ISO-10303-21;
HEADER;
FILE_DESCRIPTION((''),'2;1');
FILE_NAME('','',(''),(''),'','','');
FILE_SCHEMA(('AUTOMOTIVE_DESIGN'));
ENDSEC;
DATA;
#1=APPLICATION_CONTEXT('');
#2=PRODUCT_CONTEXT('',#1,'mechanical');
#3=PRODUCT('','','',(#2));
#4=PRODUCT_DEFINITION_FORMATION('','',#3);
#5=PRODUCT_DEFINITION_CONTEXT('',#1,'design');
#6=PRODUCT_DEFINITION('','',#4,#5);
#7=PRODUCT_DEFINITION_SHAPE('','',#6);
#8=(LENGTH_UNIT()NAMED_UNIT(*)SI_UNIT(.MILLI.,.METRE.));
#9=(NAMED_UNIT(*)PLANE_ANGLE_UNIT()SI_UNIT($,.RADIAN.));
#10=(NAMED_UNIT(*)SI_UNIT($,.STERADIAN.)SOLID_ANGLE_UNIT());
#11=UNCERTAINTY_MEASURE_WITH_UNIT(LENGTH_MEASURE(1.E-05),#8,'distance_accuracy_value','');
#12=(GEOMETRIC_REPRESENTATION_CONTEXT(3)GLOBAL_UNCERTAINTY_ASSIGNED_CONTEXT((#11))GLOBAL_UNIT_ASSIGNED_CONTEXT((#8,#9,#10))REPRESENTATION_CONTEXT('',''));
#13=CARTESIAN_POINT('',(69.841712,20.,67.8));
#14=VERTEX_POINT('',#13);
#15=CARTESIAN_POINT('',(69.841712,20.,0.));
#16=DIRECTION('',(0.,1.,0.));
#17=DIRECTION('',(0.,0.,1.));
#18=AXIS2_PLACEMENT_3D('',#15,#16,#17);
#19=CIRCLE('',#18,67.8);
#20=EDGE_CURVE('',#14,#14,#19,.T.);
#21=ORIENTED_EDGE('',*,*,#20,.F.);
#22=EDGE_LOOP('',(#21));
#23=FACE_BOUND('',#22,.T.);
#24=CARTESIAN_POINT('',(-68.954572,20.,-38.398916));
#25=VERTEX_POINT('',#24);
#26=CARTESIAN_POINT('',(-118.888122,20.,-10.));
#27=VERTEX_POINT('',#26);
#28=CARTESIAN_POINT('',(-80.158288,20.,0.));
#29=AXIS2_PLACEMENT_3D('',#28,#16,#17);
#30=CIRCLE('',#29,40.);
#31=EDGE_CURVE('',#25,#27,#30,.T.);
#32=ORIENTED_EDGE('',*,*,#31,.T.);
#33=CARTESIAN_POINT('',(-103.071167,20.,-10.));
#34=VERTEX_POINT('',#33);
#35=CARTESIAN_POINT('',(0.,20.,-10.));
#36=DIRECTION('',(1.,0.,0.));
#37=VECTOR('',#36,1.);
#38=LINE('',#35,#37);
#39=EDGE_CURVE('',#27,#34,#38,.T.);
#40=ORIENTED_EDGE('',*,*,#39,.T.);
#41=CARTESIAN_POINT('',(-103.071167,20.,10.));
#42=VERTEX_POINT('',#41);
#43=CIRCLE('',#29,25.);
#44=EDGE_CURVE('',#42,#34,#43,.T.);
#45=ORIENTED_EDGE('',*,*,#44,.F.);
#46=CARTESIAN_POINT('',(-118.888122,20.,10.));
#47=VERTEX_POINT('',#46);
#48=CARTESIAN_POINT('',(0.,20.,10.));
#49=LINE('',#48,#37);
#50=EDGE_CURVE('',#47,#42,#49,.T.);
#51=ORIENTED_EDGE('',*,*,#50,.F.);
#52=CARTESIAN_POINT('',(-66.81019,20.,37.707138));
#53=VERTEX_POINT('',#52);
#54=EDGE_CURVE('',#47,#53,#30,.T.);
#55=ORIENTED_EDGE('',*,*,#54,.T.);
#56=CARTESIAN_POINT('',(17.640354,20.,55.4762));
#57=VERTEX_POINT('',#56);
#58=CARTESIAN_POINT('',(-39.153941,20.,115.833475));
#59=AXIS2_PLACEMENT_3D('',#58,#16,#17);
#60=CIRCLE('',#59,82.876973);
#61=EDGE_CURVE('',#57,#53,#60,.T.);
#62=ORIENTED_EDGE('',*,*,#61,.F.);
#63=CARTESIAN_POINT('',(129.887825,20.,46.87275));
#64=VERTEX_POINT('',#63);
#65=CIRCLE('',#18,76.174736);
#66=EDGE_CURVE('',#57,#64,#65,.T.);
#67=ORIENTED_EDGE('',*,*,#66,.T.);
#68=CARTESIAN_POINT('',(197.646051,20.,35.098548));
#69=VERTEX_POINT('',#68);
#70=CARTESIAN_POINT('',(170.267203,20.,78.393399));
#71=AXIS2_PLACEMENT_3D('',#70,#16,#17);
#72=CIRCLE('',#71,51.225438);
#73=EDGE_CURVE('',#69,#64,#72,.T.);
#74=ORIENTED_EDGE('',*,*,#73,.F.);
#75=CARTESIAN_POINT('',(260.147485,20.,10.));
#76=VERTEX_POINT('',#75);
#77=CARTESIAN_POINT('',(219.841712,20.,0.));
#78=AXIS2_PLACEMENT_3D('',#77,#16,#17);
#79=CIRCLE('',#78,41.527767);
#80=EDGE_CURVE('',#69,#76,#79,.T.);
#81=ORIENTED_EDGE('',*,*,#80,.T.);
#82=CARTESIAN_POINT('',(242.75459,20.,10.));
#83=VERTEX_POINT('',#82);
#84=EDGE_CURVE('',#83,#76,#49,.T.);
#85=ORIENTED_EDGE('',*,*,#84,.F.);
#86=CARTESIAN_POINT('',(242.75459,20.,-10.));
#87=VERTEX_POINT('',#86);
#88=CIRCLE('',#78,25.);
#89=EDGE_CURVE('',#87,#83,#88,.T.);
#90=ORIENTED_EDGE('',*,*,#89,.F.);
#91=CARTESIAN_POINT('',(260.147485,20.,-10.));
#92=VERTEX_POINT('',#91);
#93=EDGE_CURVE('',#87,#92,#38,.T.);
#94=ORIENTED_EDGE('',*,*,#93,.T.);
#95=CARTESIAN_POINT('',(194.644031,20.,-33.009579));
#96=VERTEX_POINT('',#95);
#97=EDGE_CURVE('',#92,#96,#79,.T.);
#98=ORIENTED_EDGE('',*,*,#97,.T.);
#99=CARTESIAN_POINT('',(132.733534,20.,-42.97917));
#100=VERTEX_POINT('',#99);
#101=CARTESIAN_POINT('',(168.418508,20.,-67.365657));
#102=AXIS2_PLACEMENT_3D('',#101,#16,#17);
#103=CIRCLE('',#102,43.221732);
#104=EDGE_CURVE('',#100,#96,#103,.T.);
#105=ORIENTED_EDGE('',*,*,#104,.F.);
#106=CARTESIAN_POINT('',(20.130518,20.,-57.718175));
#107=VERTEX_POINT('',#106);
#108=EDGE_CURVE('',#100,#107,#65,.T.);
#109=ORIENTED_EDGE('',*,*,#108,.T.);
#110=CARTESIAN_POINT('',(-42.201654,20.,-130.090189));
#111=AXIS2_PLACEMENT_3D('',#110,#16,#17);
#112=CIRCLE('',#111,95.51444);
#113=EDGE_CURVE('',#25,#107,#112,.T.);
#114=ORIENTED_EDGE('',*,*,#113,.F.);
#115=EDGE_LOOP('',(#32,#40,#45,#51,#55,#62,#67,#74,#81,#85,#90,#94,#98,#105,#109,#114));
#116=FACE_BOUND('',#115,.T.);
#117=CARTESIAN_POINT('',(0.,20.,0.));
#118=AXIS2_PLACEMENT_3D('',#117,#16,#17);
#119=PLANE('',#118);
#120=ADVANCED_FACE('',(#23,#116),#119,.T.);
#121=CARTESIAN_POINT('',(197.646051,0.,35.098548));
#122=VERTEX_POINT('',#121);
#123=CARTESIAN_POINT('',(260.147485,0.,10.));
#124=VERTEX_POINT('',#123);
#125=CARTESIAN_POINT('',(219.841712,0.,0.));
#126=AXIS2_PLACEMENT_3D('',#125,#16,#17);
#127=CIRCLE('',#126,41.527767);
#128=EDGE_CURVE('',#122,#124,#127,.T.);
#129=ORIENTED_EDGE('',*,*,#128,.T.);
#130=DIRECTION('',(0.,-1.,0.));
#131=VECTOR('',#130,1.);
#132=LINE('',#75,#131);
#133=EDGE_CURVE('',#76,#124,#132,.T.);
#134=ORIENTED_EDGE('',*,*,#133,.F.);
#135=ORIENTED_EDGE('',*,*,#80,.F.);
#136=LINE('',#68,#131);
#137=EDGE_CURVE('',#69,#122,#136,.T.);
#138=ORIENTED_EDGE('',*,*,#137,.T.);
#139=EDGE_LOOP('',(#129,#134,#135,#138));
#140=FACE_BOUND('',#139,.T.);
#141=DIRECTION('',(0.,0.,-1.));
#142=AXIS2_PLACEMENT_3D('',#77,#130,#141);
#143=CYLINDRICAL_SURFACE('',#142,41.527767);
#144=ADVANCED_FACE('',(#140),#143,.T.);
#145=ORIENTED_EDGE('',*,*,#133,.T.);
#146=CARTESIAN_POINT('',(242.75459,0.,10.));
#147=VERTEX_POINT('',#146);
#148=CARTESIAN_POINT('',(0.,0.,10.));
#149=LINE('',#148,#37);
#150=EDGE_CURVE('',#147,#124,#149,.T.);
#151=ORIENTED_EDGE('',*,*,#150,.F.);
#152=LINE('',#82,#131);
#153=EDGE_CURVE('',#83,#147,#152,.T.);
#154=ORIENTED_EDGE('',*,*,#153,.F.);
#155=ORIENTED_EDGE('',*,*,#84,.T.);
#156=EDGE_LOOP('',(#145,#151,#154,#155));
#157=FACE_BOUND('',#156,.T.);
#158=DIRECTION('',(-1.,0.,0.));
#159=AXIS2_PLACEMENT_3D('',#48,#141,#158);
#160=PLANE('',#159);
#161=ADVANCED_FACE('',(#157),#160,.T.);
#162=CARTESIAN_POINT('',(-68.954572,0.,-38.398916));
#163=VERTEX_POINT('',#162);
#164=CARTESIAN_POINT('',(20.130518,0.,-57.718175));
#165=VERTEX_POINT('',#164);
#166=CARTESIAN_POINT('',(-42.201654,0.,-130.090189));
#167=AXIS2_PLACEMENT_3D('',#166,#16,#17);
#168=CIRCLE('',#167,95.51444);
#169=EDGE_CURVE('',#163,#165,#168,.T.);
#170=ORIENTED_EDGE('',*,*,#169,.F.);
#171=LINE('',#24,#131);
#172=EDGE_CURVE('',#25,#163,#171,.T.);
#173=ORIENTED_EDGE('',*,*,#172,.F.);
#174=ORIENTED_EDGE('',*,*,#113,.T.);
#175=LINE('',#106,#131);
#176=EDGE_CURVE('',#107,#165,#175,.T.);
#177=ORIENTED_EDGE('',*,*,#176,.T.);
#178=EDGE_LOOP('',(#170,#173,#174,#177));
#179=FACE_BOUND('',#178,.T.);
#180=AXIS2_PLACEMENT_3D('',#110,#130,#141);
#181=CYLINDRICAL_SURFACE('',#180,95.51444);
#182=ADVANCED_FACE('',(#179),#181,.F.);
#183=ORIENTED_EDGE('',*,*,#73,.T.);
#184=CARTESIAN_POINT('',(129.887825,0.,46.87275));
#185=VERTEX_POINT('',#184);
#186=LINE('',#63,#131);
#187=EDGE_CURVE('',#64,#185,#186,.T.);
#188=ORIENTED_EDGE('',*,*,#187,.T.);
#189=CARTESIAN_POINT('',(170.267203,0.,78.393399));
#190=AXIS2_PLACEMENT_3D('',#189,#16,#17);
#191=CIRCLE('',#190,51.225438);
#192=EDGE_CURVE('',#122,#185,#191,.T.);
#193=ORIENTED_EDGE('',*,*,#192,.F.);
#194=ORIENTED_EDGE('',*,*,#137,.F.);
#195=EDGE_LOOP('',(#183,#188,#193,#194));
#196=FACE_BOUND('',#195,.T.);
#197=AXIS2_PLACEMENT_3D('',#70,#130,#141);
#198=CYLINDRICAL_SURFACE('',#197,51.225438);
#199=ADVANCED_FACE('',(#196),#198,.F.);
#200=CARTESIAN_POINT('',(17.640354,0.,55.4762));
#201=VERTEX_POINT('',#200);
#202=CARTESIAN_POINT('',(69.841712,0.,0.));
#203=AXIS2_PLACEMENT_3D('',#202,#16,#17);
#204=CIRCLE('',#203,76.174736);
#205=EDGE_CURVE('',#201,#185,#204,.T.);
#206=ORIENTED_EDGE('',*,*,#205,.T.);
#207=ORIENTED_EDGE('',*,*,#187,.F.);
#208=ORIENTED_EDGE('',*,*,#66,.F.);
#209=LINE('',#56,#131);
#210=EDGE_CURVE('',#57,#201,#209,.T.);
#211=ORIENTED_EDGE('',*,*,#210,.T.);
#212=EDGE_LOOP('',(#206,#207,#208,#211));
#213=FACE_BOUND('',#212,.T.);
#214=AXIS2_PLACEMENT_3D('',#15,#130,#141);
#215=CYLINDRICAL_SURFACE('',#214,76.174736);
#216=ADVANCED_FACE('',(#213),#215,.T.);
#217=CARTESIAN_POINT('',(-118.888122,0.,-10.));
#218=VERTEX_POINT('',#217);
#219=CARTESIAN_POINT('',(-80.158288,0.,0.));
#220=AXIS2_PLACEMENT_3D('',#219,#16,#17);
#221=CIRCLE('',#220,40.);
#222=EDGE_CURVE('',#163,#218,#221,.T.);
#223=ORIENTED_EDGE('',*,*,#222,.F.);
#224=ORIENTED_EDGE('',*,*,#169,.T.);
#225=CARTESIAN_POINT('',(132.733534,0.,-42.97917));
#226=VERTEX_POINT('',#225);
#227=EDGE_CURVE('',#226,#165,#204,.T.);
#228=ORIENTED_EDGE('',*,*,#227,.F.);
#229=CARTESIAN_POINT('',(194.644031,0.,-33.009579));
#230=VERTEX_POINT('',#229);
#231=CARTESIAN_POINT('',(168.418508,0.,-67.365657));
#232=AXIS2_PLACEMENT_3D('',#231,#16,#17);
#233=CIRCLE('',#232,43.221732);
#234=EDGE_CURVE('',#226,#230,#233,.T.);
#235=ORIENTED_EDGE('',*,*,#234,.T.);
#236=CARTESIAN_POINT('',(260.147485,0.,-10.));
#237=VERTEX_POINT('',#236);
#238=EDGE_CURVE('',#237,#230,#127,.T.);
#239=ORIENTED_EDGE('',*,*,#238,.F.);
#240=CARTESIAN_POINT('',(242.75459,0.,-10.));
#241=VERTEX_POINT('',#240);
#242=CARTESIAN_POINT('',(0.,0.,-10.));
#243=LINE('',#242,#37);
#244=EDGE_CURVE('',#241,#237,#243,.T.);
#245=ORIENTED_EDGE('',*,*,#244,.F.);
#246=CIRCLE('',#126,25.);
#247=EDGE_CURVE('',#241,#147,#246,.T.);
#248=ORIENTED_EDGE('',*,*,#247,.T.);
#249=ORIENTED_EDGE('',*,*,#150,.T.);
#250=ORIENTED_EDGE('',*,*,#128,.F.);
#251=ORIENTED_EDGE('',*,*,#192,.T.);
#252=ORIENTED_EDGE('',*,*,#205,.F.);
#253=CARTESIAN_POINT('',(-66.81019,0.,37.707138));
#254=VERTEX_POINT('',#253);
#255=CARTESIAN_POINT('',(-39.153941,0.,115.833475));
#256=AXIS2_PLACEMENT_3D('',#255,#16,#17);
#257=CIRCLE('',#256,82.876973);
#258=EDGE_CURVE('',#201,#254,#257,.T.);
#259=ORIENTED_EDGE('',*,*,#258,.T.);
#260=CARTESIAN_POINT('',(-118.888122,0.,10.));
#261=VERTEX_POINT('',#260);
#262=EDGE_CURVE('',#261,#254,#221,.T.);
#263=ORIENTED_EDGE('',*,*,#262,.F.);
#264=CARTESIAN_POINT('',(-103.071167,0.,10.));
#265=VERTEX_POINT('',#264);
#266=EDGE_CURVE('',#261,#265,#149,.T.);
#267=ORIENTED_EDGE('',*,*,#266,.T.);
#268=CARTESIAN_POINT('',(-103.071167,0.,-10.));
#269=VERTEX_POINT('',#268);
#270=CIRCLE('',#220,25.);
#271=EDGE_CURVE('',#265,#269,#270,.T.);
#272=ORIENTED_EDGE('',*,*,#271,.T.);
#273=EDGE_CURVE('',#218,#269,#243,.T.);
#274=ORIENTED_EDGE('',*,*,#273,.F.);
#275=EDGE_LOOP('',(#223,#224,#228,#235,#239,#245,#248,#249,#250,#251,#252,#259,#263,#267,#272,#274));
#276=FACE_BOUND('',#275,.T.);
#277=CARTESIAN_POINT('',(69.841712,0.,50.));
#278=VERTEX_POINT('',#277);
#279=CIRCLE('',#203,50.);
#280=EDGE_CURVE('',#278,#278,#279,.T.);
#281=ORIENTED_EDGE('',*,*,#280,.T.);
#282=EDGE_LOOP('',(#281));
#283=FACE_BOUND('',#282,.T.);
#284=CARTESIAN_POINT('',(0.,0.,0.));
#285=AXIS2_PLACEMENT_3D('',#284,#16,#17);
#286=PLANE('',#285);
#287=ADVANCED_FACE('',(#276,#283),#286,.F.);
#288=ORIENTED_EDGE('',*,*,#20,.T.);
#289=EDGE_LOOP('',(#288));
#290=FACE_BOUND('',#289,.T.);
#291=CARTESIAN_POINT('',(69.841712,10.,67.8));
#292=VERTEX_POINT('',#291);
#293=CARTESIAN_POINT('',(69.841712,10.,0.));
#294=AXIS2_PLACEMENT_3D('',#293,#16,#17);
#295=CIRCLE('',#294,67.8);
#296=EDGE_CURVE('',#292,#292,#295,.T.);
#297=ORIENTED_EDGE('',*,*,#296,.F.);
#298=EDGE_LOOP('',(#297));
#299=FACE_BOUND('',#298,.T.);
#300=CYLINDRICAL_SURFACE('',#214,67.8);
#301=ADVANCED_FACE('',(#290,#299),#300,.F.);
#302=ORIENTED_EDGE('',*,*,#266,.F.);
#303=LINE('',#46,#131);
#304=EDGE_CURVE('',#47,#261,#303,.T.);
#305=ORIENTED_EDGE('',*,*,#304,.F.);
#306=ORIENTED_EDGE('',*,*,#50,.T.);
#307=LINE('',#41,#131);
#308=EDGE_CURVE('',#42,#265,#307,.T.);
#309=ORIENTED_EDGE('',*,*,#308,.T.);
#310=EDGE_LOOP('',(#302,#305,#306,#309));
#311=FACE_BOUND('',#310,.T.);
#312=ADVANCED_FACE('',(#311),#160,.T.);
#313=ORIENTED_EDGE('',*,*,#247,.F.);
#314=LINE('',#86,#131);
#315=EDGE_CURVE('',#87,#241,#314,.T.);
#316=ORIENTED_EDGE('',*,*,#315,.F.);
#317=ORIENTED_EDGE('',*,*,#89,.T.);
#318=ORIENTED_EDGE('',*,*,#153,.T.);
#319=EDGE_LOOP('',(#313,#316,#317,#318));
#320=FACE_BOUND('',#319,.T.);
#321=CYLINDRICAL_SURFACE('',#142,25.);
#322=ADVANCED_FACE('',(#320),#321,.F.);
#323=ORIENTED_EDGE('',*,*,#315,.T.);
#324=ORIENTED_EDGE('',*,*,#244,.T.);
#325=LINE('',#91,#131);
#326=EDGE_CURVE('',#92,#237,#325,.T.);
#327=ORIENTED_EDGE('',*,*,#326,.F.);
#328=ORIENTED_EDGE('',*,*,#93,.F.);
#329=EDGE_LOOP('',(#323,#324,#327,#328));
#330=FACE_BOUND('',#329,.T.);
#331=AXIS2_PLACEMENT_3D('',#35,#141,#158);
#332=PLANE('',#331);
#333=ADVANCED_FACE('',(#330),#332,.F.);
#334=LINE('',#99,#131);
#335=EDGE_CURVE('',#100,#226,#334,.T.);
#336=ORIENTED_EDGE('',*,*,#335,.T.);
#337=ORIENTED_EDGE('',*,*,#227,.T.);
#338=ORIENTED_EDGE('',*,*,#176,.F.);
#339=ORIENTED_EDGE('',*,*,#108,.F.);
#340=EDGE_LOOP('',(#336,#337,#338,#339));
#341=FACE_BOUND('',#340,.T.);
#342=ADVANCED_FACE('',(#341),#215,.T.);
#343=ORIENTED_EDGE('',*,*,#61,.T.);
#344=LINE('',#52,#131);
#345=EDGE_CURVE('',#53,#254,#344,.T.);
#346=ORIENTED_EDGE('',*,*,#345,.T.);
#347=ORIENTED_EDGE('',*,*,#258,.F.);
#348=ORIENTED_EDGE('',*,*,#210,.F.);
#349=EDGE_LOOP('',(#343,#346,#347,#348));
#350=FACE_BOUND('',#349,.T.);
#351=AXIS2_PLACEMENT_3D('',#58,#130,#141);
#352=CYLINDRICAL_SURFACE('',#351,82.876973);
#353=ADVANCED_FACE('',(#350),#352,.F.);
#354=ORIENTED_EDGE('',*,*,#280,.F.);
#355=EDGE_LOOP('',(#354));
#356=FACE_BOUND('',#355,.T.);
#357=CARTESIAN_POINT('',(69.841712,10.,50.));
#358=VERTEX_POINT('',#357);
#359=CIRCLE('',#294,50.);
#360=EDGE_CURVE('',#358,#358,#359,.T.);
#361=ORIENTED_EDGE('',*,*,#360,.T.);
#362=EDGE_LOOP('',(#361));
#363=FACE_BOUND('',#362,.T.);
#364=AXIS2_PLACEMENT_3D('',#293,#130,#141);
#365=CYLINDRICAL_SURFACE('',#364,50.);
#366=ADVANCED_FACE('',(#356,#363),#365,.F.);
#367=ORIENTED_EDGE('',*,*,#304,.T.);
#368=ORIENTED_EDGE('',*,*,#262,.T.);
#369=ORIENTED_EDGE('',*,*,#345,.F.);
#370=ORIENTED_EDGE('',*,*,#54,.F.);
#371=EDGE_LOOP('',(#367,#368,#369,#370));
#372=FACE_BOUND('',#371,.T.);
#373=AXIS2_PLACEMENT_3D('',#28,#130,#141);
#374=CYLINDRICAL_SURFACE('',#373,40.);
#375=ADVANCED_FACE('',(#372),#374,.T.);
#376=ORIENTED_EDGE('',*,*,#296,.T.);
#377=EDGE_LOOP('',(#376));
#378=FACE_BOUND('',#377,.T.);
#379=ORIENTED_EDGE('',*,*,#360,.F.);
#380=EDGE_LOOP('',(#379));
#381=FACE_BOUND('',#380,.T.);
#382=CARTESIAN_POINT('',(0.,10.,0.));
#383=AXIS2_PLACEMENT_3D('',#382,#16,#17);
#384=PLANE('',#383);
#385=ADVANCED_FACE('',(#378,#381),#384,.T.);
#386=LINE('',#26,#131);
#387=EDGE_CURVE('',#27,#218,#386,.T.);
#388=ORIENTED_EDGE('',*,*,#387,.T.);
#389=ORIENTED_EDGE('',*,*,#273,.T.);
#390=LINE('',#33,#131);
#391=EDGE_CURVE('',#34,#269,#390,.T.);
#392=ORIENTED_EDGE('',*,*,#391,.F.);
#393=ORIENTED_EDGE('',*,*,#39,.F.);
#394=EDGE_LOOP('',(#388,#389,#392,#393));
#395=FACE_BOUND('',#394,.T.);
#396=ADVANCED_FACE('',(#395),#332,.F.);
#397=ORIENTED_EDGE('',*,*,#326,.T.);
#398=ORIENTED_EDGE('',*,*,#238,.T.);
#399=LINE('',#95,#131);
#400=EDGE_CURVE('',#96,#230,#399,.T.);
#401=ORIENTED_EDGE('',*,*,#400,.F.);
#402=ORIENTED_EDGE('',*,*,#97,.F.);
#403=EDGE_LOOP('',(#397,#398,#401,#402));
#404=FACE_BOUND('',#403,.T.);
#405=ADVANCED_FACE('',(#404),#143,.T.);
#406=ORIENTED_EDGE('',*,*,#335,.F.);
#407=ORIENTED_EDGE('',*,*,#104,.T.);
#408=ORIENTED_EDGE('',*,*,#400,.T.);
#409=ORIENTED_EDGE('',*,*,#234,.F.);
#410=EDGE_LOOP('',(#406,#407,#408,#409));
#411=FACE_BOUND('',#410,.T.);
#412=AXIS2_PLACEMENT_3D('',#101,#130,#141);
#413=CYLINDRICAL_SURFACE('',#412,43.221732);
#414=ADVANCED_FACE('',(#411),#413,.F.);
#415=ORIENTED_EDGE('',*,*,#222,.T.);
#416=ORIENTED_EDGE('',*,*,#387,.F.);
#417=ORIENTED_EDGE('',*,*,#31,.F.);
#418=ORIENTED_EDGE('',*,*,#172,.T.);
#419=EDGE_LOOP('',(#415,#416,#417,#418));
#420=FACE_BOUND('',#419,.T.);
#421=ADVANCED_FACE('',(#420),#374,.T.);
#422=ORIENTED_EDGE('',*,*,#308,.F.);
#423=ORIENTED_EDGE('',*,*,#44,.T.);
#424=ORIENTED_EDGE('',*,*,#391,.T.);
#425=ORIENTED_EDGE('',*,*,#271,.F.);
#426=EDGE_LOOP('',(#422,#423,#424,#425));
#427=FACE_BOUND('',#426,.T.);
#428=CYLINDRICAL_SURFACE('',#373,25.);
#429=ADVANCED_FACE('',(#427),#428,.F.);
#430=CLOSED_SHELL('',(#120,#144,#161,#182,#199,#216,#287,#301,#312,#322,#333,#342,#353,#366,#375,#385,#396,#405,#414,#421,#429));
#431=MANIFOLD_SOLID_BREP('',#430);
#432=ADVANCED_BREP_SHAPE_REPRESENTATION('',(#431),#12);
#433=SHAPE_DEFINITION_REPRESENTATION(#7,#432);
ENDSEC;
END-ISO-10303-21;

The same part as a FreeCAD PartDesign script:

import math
import FreeCAD as App
import Part
import Sketcher

V = App.Vector

doc = App.newDocument("Part")
body = doc.addObject("PartDesign::Body", "Body")

sketch1 = doc.addObject("Sketcher::SketchObject", "Sketch")
body.addObject(sketch1)
sketch1.AttachmentSupport = (doc.XZ_Plane, [""])
sketch1.MapMode = "FlatFace"
sketch1.addGeometry([
    Part.LineSegment(V(242.75459, -10, 0), V(260.147485, -10, 0)),
    Part.ArcOfCircle(Part.Circle(V(219.841712, 0, 0), V(0, 0, 1), 41.527767), math.radians(-127.356105), math.radians(-13.933924)),
    Part.ArcOfCircle(Part.Circle(V(168.418508, -67.365657, 0), V(0, 0, 1), 43.221732), math.radians(52.643895), math.radians(145.651983)),
    Part.ArcOfCircle(Part.Circle(V(69.841712, 0, 0), V(0, 0, 1), 76.174736), math.radians(-130.737483), math.radians(-34.348017)),
    Part.ArcOfCircle(Part.Circle(V(-42.201654, -130.090189, 0), V(0, 0, 1), 95.51444), math.radians(49.262517), math.radians(106.26575)),
    Part.ArcOfCircle(Part.Circle(V(-80.158288, 0, 0), V(0, 0, 1), 40), math.radians(-165.522488), math.radians(-73.73425)),
    Part.LineSegment(V(-118.888122, -10, 0), V(-103.071167, -10, 0)),
    Part.ArcOfCircle(Part.Circle(V(-80.158288, 0, 0), V(0, 0, 1), 25), math.radians(-156.421822), math.radians(156.421822)),
    Part.LineSegment(V(-103.071167, 10, 0), V(-118.888122, 10, 0)),
    Part.ArcOfCircle(Part.Circle(V(-80.158288, 0, 0), V(0, 0, 1), 40), math.radians(70.506346), math.radians(165.522488)),
    Part.ArcOfCircle(Part.Circle(V(-39.153941, 115.833475, 0), V(0, 0, 1), 82.876973), math.radians(-109.493654), math.radians(-46.742024)),
    Part.ArcOfCircle(Part.Circle(V(69.841712, 0, 0), V(0, 0, 1), 76.174736), math.radians(37.976045), math.radians(133.257976)),
    Part.ArcOfCircle(Part.Circle(V(170.267203, 78.393399, 0), V(0, 0, 1), 51.225438), math.radians(-142.023955), math.radians(-57.69151)),
    Part.ArcOfCircle(Part.Circle(V(219.841712, 0, 0), V(0, 0, 1), 41.527767), math.radians(13.933924), math.radians(122.30849)),
    Part.LineSegment(V(260.147485, 10, 0), V(242.75459, 10, 0)),
    Part.ArcOfCircle(Part.Circle(V(219.841712, 0, 0), V(0, 0, 1), 25), math.radians(23.578178), math.radians(336.421822)),
    Part.Circle(V(69.841712, 0, 0), V(0, 0, 1), 67.8),
], False)
sketch1.addConstraint([
    Sketcher.Constraint("Coincident", 0, 2, 1, 2),
    Sketcher.Constraint("Tangent", 1, 1, 2, 1),
    Sketcher.Constraint("Tangent", 2, 2, 3, 2),
    Sketcher.Constraint("Tangent", 3, 1, 4, 1),
    Sketcher.Constraint("Tangent", 4, 2, 5, 2),
    Sketcher.Constraint("Coincident", 5, 1, 6, 1),
    Sketcher.Constraint("Coincident", 6, 2, 7, 1),
    Sketcher.Constraint("Coincident", 7, 2, 8, 1),
    Sketcher.Constraint("Coincident", 8, 2, 9, 2),
    Sketcher.Constraint("Tangent", 9, 1, 10, 1),
    Sketcher.Constraint("Tangent", 10, 2, 11, 2),
    Sketcher.Constraint("Tangent", 11, 1, 12, 1),
    Sketcher.Constraint("Tangent", 12, 2, 13, 2),
    Sketcher.Constraint("Coincident", 13, 1, 14, 1),
    Sketcher.Constraint("Coincident", 14, 2, 15, 1),
    Sketcher.Constraint("Coincident", 15, 2, 0, 1),
    Sketcher.Constraint("Horizontal", 0),
    Sketcher.Constraint("Horizontal", 6),
    Sketcher.Constraint("Horizontal", 8),
    Sketcher.Constraint("Horizontal", 14),
    Sketcher.Constraint("Coincident", 7, 3, 5, 3),
    Sketcher.Constraint("Coincident", 9, 3, 5, 3),
    Sketcher.Constraint("Coincident", 11, 3, 3, 3),
    Sketcher.Constraint("Coincident", 13, 3, 1, 3),
    Sketcher.Constraint("Coincident", 15, 3, 1, 3),
    Sketcher.Constraint("Coincident", 16, 3, 3, 3),
    Sketcher.Constraint("Equal", 5, 9),
    Sketcher.Constraint("Equal", 3, 11),
    Sketcher.Constraint("Equal", 1, 13),
    Sketcher.Constraint("Equal", 7, 15),
    Sketcher.Constraint("Symmetric", 6, 2, 7, 2, -1),
    Sketcher.Constraint("Symmetric", 0, 2, 13, 1, -1),
    Sketcher.Constraint("PointOnObject", 3, 3, -1),
    Sketcher.Constraint("Horizontal", 0, 2, 5, 1),
    Sketcher.Constraint("Radius", 5, 40.0),
    Sketcher.Constraint("Radius", 7, 25.0),
    Sketcher.Constraint("Diameter", 16, 135.6),
    Sketcher.Constraint("DistanceY", 0, 2, -1, 1, 10.0),
    Sketcher.Constraint("DistanceX", 3, 3, 1, 3, 150.0),
    Sketcher.Constraint("DistanceX", 5, 3, 3, 3, 150.0),
    Sketcher.Constraint("Radius", 2, 43.221732),
    Sketcher.Constraint("Radius", 4, 95.51444),
    Sketcher.Constraint("Radius", 1, 41.527767),
    Sketcher.Constraint("Radius", 3, 76.174736),
    Sketcher.Constraint("Radius", 10, 82.876973),
    Sketcher.Constraint("Radius", 12, 51.225438),
    Sketcher.Constraint("DistanceX", -1, 1, 1, 3, 219.841712),
])
pad1 = doc.addObject("PartDesign::Pad", "Pad")
body.addObject(pad1)
pad1.Profile = sketch1
pad1.Length = 20
pad1.Reversed = True

sketch2 = doc.addObject("Sketcher::SketchObject", "Sketch001")
body.addObject(sketch2)
sketch2.AttachmentSupport = (doc.XZ_Plane, [""])
sketch2.MapMode = "FlatFace"
sketch2.addGeometry([
    Part.Circle(V(69.841712, 0, 0), V(0, 0, 1), 67.8),
    Part.Circle(V(69.841712, 0, 0), V(0, 0, 1), 50),
], False)
sketch2.addConstraint([
    Sketcher.Constraint("Coincident", 1, 3, 0, 3),
    Sketcher.Constraint("PointOnObject", 0, 3, -1),
    Sketcher.Constraint("Diameter", 1, 100.0),
    Sketcher.Constraint("Diameter", 0, 135.6),
    Sketcher.Constraint("DistanceX", -1, 1, 0, 3, 69.841712),
])
pad2 = doc.addObject("PartDesign::Pad", "Pad001")
body.addObject(pad2)
pad2.Profile = sketch2
pad2.Length = 10
pad2.Reversed = True

doc.recompute()
